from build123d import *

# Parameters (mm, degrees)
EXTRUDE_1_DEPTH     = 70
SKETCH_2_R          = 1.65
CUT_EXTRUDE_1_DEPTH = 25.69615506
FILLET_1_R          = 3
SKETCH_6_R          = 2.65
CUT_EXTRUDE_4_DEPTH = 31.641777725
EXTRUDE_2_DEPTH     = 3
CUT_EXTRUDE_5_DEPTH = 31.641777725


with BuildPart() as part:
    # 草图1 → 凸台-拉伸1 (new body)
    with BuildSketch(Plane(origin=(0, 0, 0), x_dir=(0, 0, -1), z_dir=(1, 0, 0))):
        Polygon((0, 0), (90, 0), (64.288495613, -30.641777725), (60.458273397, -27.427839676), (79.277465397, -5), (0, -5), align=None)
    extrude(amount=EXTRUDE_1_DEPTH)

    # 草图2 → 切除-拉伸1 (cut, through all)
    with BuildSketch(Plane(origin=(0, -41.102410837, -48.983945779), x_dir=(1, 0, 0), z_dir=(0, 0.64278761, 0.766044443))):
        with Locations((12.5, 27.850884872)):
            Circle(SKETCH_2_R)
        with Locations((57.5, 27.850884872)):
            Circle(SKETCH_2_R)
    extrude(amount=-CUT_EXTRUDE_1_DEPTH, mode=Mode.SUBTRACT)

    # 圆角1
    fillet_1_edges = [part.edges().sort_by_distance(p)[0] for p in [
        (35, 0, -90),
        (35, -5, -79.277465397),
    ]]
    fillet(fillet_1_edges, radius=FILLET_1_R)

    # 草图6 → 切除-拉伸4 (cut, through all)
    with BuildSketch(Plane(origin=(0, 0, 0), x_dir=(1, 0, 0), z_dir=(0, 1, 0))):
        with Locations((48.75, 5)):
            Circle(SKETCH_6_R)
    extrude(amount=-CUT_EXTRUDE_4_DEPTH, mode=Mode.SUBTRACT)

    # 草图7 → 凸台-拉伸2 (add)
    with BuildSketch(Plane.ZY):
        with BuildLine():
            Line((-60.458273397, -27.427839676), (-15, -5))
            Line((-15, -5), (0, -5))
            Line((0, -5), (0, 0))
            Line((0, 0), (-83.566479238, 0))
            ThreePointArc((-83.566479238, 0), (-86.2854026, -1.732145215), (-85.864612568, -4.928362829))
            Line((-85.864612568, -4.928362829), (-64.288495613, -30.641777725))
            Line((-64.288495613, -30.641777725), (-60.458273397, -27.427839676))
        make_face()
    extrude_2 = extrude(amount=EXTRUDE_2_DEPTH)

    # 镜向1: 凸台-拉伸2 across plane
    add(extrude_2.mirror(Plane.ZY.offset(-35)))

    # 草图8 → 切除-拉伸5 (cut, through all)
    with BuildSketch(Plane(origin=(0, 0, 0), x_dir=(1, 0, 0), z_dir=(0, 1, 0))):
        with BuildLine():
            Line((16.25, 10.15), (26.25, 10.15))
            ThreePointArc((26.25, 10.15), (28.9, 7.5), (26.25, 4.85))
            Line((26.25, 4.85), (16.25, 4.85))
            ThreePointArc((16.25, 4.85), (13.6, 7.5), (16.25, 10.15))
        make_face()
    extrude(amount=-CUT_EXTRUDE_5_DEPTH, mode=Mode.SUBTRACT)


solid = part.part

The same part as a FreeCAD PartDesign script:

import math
import FreeCAD as App
import Part
import Sketcher

V = App.Vector
Q = App.Units.Quantity


def edges_at(feature, points):
    """Names of the edges that pass closest to the given points."""
    edges = feature.Shape.Edges
    near = lambda p: min(range(len(edges)), key=lambda i: edges[i].distToShape(Part.Vertex(*p))[0])
    return sorted({f"Edge{near(p) + 1}" for p in points})

doc = App.newDocument("Part")
body = doc.addObject("PartDesign::Body", "Body")

# Sketch on YZ plane
sketch1 = body.newObject("Sketcher::SketchObject", "Sketch")
sketch1.AttachmentSupport = (doc.getObject("YZ_Plane"), [""])
sketch1.MapMode = "FlatFace"
sketch1.addGeometry(Part.LineSegment(V(0, -90, 0), V(0, 0, 0)), False)
sketch1.addGeometry(Part.LineSegment(V(0, 0, 0), V(-5, 0, 0)), False)
sketch1.addGeometry(Part.LineSegment(V(-5, 0, 0), V(-5, -79, 0)), False)
sketch1.addGeometry(Part.LineSegment(V(-5, -79, 0), V(-27, -60, 0)), False)
sketch1.addGeometry(Part.LineSegment(V(-27, -60, 0), V(-31, -64, 0)), False)
sketch1.addGeometry(Part.LineSegment(V(-31, -64, 0), V(0, -90, 0)), False)
sketch1.addConstraint(Sketcher.Constraint("Coincident", 0, 2, 1, 1))
sketch1.addConstraint(Sketcher.Constraint("Coincident", 1, 2, 2, 1))
sketch1.addConstraint(Sketcher.Constraint("Coincident", 2, 2, 3, 1))
sketch1.addConstraint(Sketcher.Constraint("Coincident", 3, 2, 4, 1))
sketch1.addConstraint(Sketcher.Constraint("Coincident", 4, 2, 5, 1))
sketch1.addConstraint(Sketcher.Constraint("Coincident", 5, 2, 0, 1))
sketch1.addConstraint(Sketcher.Constraint("Vertical", 0))
sketch1.addConstraint(Sketcher.Constraint("Horizontal", 1))
sketch1.addConstraint(Sketcher.Constraint("Vertical", 2))
sketch1.addConstraint(Sketcher.Constraint("Coincident", 0, 2, -1, 1))
sketch1.addConstraint(Sketcher.Constraint("Perpendicular", 3, 4))
sketch1.addConstraint(Sketcher.Constraint("Perpendicular", 4, 5))
sketch1.addConstraint(Sketcher.Constraint("DistanceX", 1, 2, 1, 1, 5.0))
sketch1.addConstraint(Sketcher.Constraint("DistanceY", 0, 1, 0, 2, 90.0))
sketch1.addConstraint(Sketcher.Constraint("Angle", 3, Q("140 deg")))
sketch1.addConstraint(Sketcher.Constraint("Distance", 4, 5.0))
sketch1.addConstraint(Sketcher.Constraint("Distance", 5, 40.0))
pad1 = body.newObject("PartDesign::Pad", "Pad")
pad1.Profile = sketch1
pad1.Length = 70

# Sketch on an angled plane
sketch2 = body.newObject("Sketcher::SketchObject", "Sketch001")
sketch2.Placement = App.Placement(V(0, -41.102411, -48.983946), App.Rotation(V(1, 0, 0), V(0, 0.766044443, -0.64278761), V(0, 0.64278761, 0.766044443), "ZXY"))
sketch2.addGeometry(Part.Circle(V(12.5, 27.9, 0), V(0, 0, 1), 1.6), False)
sketch2.addGeometry(Part.Circle(V(57.5, 27.9, 0), V(0, 0, 1), 1.6), False)
sketch2.addConstraint(Sketcher.Constraint("Equal", 0, 1))
sketch2.addConstraint(Sketcher.Constraint("Horizontal", 0, 3, 1, 3))
sketch2.addConstraint(Sketcher.Constraint("Diameter", 0, 3.3))
sketch2.addConstraint(Sketcher.Constraint("DistanceX", 0, 3, 1, 3, 45.0))
sketch2.addConstraint(Sketcher.Constraint("DistanceX", -1, 1, 0, 3, 12.5))
sketch2.addConstraint(Sketcher.Constraint("DistanceY", -1, 1, 0, 3, 27.850885))
pocket1 = body.newObject("PartDesign::Pocket", "Pocket")
pocket1.Profile = sketch2
pocket1.Type = "ThroughAll"
doc.recompute()

fillet = body.newObject("PartDesign::Fillet", "Fillet")
fillet.Base = (pocket1, edges_at(pocket1, [(35, 0, -90), (35, -5, -79.277)]))
fillet.Radius = 3

# Sketch on XZ plane
sketch3 = body.newObject("Sketcher::SketchObject", "Sketch002")
sketch3.AttachmentSupport = (doc.getObject("XZ_Plane"), [""])
sketch3.MapMode = "FlatFace"
sketch3.addGeometry(Part.Circle(V(48.8, -5, 0), V(0, 0, 1), 2.6), False)
sketch3.addConstraint(Sketcher.Constraint("Diameter", 0, 5.3))
sketch3.addConstraint(Sketcher.Constraint("DistanceY", 0, 3, -1, 1, 5.0))
sketch3.addConstraint(Sketcher.Constraint("DistanceX", -1, 1, 0, 3, 48.75))
pocket2 = body.newObject("PartDesign::Pocket", "Pocket001")
pocket2.Profile = sketch3
pocket2.Type = "ThroughAll"
pocket2.Reversed = True

# Sketch on YZ plane
sketch4 = body.newObject("Sketcher::SketchObject", "Sketch003")
sketch4.AttachmentSupport = (doc.getObject("YZ_Plane"), [""])
sketch4.MapMode = "FlatFace"
sketch4.addGeometry(Part.LineSegment(V(-27.4, -60.5, 0), V(-5, -15, 0)), False)
sketch4.addGeometry(Part.LineSegment(V(-5, -15, 0), V(-5, 0, 0)), False)
sketch4.addGeometry(Part.LineSegment(V(-5, 0, 0), V(0, 0, 0)), False)
sketch4.addGeometry(Part.LineSegment(V(0, 0, 0), V(0, -83.6, 0)), False)
sketch4.addGeometry(Part.ArcOfCircle(Part.Circle(V(-3, -83.6, 0), V(0, 0, 1), 3), math.radians(-130), math.radians(0)), False)
sketch4.addGeometry(Part.LineSegment(V(-4.9, -85.9, 0), V(-30.6, -64.3, 0)), False)
sketch4.addGeometry(Part.LineSegment(V(-30.6, -64.3, 0), V(-27.4, -60.5, 0)), False)
sketch4.addConstraint(Sketcher.Constraint("Coincident", 0, 2, 1, 1))
sketch4.addConstraint(Sketcher.Constraint("Coincident", 1, 2, 2, 1))
sketch4.addConstraint(Sketcher.Constraint("Coincident", 2, 2, 3, 1))
sketch4.addConstraint(Sketcher.Constraint("Tangent", 3, 2, 4, 2))
sketch4.addConstraint(Sketcher.Constraint("Tangent", 4, 1, 5, 1))
sketch4.addConstraint(Sketcher.Constraint("Coincident", 5, 2, 6, 1))
sketch4.addConstraint(Sketcher.Constraint("Coincident", 6, 2, 0, 1))
sketch4.addConstraint(Sketcher.Constraint("Vertical", 1))
sketch4.addConstraint(Sketcher.Constraint("Horizontal", 2))
sketch4.addConstraint(Sketcher.Constraint("Vertical", 3))
sketch4.addConstraint(Sketcher.Constraint("Coincident", 2, 2, -1, 1))
sketch4.addConstraint(Sketcher.Constraint("Perpendicular", 5, 6))
sketch4.addConstraint(Sketcher.Constraint("Radius", 4, 3.0))
sketch4.addConstraint(Sketcher.Constraint("DistanceX", 2, 1, 2, 2, 5.0))
sketch4.addConstraint(Sketcher.Constraint("DistanceY", 1, 1, 1, 2, 15.0))
sketch4.addConstraint(Sketcher.Constraint("Angle", 5, Q("140 deg")))
sketch4.addConstraint(Sketcher.Constraint("Distance", 6, 5.0))
sketch4.addConstraint(Sketcher.Constraint("DistanceY", 3, 2, 3, 1, 83.566479))
sketch4.addConstraint(Sketcher.Constraint("Distance", 5, 33.566479))
pad2 = body.newObject("PartDesign::Pad", "Pad001")
pad2.Profile = sketch4
pad2.Length = 3
pad2.Reversed = True
doc.recompute()

datumplane = body.newObject("PartDesign::Plane", "DatumPlane")
datumplane.AttachmentSupport = (doc.getObject("YZ_Plane"), [""])
datumplane.MapMode = "FlatFace"
datumplane.AttachmentOffset = App.Placement(V(0, 0, 35), App.Rotation())
mirrored = body.newObject("PartDesign::Mirrored", "Mirrored")
mirrored.Originals = [pad2]
mirrored.MirrorPlane = (datumplane, [""])
body.Tip = mirrored

# Sketch on XZ plane
sketch5 = body.newObject("Sketcher::SketchObject", "Sketch004")
sketch5.AttachmentSupport = (doc.getObject("XZ_Plane"), [""])
sketch5.MapMode = "FlatFace"
sketch5.addGeometry(Part.LineSegment(V(26.2, -10.2, 0), V(16.2, -10.2, 0)), False)
sketch5.addGeometry(Part.ArcOfCircle(Part.Circle(V(16.2, -7.5, 0), V(0, 0, 1), 2.6), math.radians(90), math.radians(270)), False)
sketch5.addGeometry(Part.LineSegment(V(16.2, -4.8, 0), V(26.2, -4.8, 0)), False)
sketch5.addGeometry(Part.ArcOfCircle(Part.Circle(V(26.2, -7.5, 0), V(0, 0, 1), 2.6), math.radians(-90), math.radians(90)), False)
sketch5.addConstraint(Sketcher.Constraint("Tangent", 0, 2, 1, 2))
sketch5.addConstraint(Sketcher.Constraint("Tangent", 1, 1, 2, 1))
sketch5.addConstraint(Sketcher.Constraint("Tangent", 2, 2, 3, 2))
sketch5.addConstraint(Sketcher.Constraint("Tangent", 3, 1, 0, 1))
sketch5.addConstraint(Sketcher.Constraint("Horizontal", 0))
sketch5.addConstraint(Sketcher.Constraint("Horizontal", 2))
sketch5.addConstraint(Sketcher.Constraint("DistanceX", 0, 2, 0, 1, 10.0))
sketch5.addConstraint(Sketcher.Constraint("Radius", 1, 2.65))
sketch5.addConstraint(Sketcher.Constraint("DistanceY", 1, 3, -1, 1, 7.5))
sketch5.addConstraint(Sketcher.Constraint("DistanceX", -1, 1, 1, 3, 16.25))
pocket3 = body.newObject("PartDesign::Pocket", "Pocket002")
pocket3.Profile = sketch5
pocket3.Type = "ThroughAll"
pocket3.Reversed = True

doc.recompute()
